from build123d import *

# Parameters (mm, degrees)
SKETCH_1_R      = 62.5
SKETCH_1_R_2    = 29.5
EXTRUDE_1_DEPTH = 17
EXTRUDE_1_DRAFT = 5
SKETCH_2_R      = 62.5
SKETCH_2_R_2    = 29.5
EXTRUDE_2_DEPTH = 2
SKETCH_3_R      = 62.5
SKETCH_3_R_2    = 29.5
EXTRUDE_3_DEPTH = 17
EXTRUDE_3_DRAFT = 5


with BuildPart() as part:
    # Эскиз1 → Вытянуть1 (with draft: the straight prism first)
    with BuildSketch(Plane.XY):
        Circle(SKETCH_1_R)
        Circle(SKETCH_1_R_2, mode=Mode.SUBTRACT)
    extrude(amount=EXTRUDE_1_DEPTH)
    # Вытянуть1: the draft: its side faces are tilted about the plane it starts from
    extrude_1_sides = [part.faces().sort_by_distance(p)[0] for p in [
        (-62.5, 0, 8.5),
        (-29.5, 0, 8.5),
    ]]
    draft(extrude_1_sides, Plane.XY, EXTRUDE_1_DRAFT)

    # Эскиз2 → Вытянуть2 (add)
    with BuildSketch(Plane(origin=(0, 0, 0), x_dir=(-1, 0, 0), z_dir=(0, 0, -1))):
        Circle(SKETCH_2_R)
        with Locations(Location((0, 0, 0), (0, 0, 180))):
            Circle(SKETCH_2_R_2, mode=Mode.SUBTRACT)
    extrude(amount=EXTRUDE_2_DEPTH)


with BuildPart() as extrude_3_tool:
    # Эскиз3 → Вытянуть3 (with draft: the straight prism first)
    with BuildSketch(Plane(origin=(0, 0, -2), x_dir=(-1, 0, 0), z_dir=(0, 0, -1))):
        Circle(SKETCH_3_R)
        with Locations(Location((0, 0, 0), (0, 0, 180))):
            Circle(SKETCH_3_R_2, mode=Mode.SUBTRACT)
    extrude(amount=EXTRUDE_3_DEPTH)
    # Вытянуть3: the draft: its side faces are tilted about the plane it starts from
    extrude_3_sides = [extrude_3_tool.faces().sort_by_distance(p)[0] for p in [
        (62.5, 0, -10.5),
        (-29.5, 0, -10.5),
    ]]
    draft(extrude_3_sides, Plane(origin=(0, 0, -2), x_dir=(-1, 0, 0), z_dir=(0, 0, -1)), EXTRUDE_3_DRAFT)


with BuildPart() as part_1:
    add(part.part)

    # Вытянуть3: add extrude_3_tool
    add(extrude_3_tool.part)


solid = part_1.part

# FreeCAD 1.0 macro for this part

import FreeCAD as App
import Part
import Sketcher
from FreeCAD import Vector
Q = App.Units.Quantity


def faces_at(feature, points):
    """Names of the faces that lie closest to the given points."""
    faces = feature.Shape.Faces
    near = lambda p: min(range(len(faces)), key=lambda i: faces[i].distToShape(Part.Vertex(*p))[0])
    return sorted({f"Face{near(p) + 1}" for p in points})

doc = App.newDocument("Part")
body = doc.addObject("PartDesign::Body", "Body")

sketch1 = body.newObject("Sketcher::SketchObject", "Sketch")
sketch1.AttachmentSupport = (doc.getObject("XY_Plane"), [""])
sketch1.MapMode = "FlatFace"
sketch1.addGeometry([
    Part.Circle(Vector(0, 0, 0), Vector(0, 0, 1), 62.5),
    Part.Circle(Vector(0, 0, 0), Vector(0, 0, 1), 29.5),
], False)
sketch1.addConstraint([
    Sketcher.Constraint("Coincident", 0, 3, -1, 1),
    Sketcher.Constraint("Coincident", 1, 3, -1, 1),
    Sketcher.Constraint("Diameter", 0, Q("125 mm")),
    Sketcher.Constraint("Diameter", 1, Q("59 mm")),
])
pad1 = body.newObject("PartDesign::Pad", "Pad")
pad1.Profile = sketch1
pad1.Length = 17
doc.recompute()

draft = body.newObject("PartDesign::Draft", "Draft")
draft.Base = (pad1, faces_at(pad1, [(-62.5, 0, 8.5), (-29.5, 0, 8.5)]))
draft.NeutralPlane = (doc.getObject("XY_Plane"), [""])
draft.Angle = 5
draft.Reversed = False

sketch2 = body.newObject("Sketcher::SketchObject", "Sketch001")
sketch2.AttachmentSupport = (doc.getObject("XY_Plane"), [""])
sketch2.MapMode = "FlatFace"
sketch2.addGeometry([
    Part.Circle(Vector(0, 0, 0), Vector(0, 0, 1), 62.5),
    Part.Circle(Vector(0, 0, 0), Vector(0, 0, 1), 29.5),
], False)
sketch2.addConstraint([
    Sketcher.Constraint("Coincident", 0, 3, -1, 1),
    Sketcher.Constraint("Coincident", 1, 3, -1, 1),
    Sketcher.Constraint("Diameter", 0, Q("125 mm")),
    Sketcher.Constraint("Diameter", 1, Q("59 mm")),
])
pad2 = body.newObject("PartDesign::Pad", "Pad001")
pad2.Profile = sketch2
pad2.Length = 2
pad2.Reversed = True
body2 = doc.addObject("PartDesign::Body", "Body001")

sketch3 = body2.newObject("Sketcher::SketchObject", "Sketch002")
sketch3.AttachmentSupport = (doc.getObject("XY_Plane001"), [""])
sketch3.MapMode = "FlatFace"
sketch3.AttachmentOffset = App.Placement(Vector(0, 0, -2), App.Rotation())
sketch3.addGeometry([
    Part.Circle(Vector(0, 0, 0), Vector(0, 0, 1), 62.5),
    Part.Circle(Vector(0, 0, 0), Vector(0, 0, 1), 29.5),
], False)
sketch3.addConstraint([
    Sketcher.Constraint("Coincident", 0, 3, -1, 1),
    Sketcher.Constraint("Coincident", 1, 3, -1, 1),
    Sketcher.Constraint("Diameter", 0, Q("125 mm")),
    Sketcher.Constraint("Diameter", 1, Q("59 mm")),
])
pad3 = body2.newObject("PartDesign::Pad", "Pad002")
pad3.Profile = sketch3
pad3.Length = 17
pad3.Reversed = True
doc.recompute()

datumplane = body2.newObject("PartDesign::Plane", "DatumPlane")
datumplane.AttachmentSupport = (doc.getObject("XY_Plane001"), [""])
datumplane.MapMode = "FlatFace"
datumplane.AttachmentOffset = App.Placement(Vector(0, 0, -2), App.Rotation())
draft2 = body2.newObject("PartDesign::Draft", "Draft001")
draft2.Base = (pad3, faces_at(pad3, [(62.5, 0, -10.5), (-29.5, 0, -10.5)]))
draft2.NeutralPlane = (datumplane, [""])
draft2.Angle = 5
draft2.Reversed = True
doc.recompute()

boolean = body.newObject("PartDesign::Boolean", "Boolean")
boolean.Type = "Fuse"
boolean.addObjects([body2])

doc.recompute()
